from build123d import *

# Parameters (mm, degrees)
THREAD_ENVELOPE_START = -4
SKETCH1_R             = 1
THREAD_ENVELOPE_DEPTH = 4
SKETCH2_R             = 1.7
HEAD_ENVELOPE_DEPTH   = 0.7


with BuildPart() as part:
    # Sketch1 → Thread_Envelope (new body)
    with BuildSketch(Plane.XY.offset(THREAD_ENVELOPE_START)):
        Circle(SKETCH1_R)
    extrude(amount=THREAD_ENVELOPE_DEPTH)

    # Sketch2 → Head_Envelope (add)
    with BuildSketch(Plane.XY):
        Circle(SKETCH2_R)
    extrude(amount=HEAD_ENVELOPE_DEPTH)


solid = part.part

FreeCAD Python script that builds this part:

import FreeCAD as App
import Part
import Sketcher
from FreeCAD import Vector

doc = App.newDocument("Part")
body = doc.addObject("PartDesign::Body", "Body")

# Sketch on XY plane
sketch1 = body.newObject("Sketcher::SketchObject", "Sketch")
sketch1.AttachmentSupport = (doc.getObject("XY_Plane"), [""])
sketch1.MapMode = "FlatFace"
sketch1.AttachmentOffset = App.Placement(Vector(0, 0, -4), App.Rotation())
sketch1.addGeometry(Part.Circle(Vector(0, 0, 0), Vector(0, 0, 1), 1), False)
sketch1.addConstraint([
    Sketcher.Constraint("Coincident", 0, 3, -1, 1),
    Sketcher.Constraint("Diameter", 0, 2.0),
])
pad1 = body.newObject("PartDesign::Pad", "Pad")
pad1.Profile = sketch1
pad1.Length = 4

# Sketch on XY plane
sketch2 = body.newObject("Sketcher::SketchObject", "Sketch001")
sketch2.AttachmentSupport = (doc.getObject("XY_Plane"), [""])
sketch2.MapMode = "FlatFace"
sketch2.addGeometry(Part.Circle(Vector(0, 0, 0), Vector(0, 0, 1), 1.7), False)
sketch2.addConstraint([
    Sketcher.Constraint("Coincident", 0, 3, -1, 1),
    Sketcher.Constraint("Diameter", 0, 3.4),
])
pad2 = body.newObject("PartDesign::Pad", "Pad001")
pad2.Profile = sketch2
pad2.Length = 0.7

doc.recompute()
